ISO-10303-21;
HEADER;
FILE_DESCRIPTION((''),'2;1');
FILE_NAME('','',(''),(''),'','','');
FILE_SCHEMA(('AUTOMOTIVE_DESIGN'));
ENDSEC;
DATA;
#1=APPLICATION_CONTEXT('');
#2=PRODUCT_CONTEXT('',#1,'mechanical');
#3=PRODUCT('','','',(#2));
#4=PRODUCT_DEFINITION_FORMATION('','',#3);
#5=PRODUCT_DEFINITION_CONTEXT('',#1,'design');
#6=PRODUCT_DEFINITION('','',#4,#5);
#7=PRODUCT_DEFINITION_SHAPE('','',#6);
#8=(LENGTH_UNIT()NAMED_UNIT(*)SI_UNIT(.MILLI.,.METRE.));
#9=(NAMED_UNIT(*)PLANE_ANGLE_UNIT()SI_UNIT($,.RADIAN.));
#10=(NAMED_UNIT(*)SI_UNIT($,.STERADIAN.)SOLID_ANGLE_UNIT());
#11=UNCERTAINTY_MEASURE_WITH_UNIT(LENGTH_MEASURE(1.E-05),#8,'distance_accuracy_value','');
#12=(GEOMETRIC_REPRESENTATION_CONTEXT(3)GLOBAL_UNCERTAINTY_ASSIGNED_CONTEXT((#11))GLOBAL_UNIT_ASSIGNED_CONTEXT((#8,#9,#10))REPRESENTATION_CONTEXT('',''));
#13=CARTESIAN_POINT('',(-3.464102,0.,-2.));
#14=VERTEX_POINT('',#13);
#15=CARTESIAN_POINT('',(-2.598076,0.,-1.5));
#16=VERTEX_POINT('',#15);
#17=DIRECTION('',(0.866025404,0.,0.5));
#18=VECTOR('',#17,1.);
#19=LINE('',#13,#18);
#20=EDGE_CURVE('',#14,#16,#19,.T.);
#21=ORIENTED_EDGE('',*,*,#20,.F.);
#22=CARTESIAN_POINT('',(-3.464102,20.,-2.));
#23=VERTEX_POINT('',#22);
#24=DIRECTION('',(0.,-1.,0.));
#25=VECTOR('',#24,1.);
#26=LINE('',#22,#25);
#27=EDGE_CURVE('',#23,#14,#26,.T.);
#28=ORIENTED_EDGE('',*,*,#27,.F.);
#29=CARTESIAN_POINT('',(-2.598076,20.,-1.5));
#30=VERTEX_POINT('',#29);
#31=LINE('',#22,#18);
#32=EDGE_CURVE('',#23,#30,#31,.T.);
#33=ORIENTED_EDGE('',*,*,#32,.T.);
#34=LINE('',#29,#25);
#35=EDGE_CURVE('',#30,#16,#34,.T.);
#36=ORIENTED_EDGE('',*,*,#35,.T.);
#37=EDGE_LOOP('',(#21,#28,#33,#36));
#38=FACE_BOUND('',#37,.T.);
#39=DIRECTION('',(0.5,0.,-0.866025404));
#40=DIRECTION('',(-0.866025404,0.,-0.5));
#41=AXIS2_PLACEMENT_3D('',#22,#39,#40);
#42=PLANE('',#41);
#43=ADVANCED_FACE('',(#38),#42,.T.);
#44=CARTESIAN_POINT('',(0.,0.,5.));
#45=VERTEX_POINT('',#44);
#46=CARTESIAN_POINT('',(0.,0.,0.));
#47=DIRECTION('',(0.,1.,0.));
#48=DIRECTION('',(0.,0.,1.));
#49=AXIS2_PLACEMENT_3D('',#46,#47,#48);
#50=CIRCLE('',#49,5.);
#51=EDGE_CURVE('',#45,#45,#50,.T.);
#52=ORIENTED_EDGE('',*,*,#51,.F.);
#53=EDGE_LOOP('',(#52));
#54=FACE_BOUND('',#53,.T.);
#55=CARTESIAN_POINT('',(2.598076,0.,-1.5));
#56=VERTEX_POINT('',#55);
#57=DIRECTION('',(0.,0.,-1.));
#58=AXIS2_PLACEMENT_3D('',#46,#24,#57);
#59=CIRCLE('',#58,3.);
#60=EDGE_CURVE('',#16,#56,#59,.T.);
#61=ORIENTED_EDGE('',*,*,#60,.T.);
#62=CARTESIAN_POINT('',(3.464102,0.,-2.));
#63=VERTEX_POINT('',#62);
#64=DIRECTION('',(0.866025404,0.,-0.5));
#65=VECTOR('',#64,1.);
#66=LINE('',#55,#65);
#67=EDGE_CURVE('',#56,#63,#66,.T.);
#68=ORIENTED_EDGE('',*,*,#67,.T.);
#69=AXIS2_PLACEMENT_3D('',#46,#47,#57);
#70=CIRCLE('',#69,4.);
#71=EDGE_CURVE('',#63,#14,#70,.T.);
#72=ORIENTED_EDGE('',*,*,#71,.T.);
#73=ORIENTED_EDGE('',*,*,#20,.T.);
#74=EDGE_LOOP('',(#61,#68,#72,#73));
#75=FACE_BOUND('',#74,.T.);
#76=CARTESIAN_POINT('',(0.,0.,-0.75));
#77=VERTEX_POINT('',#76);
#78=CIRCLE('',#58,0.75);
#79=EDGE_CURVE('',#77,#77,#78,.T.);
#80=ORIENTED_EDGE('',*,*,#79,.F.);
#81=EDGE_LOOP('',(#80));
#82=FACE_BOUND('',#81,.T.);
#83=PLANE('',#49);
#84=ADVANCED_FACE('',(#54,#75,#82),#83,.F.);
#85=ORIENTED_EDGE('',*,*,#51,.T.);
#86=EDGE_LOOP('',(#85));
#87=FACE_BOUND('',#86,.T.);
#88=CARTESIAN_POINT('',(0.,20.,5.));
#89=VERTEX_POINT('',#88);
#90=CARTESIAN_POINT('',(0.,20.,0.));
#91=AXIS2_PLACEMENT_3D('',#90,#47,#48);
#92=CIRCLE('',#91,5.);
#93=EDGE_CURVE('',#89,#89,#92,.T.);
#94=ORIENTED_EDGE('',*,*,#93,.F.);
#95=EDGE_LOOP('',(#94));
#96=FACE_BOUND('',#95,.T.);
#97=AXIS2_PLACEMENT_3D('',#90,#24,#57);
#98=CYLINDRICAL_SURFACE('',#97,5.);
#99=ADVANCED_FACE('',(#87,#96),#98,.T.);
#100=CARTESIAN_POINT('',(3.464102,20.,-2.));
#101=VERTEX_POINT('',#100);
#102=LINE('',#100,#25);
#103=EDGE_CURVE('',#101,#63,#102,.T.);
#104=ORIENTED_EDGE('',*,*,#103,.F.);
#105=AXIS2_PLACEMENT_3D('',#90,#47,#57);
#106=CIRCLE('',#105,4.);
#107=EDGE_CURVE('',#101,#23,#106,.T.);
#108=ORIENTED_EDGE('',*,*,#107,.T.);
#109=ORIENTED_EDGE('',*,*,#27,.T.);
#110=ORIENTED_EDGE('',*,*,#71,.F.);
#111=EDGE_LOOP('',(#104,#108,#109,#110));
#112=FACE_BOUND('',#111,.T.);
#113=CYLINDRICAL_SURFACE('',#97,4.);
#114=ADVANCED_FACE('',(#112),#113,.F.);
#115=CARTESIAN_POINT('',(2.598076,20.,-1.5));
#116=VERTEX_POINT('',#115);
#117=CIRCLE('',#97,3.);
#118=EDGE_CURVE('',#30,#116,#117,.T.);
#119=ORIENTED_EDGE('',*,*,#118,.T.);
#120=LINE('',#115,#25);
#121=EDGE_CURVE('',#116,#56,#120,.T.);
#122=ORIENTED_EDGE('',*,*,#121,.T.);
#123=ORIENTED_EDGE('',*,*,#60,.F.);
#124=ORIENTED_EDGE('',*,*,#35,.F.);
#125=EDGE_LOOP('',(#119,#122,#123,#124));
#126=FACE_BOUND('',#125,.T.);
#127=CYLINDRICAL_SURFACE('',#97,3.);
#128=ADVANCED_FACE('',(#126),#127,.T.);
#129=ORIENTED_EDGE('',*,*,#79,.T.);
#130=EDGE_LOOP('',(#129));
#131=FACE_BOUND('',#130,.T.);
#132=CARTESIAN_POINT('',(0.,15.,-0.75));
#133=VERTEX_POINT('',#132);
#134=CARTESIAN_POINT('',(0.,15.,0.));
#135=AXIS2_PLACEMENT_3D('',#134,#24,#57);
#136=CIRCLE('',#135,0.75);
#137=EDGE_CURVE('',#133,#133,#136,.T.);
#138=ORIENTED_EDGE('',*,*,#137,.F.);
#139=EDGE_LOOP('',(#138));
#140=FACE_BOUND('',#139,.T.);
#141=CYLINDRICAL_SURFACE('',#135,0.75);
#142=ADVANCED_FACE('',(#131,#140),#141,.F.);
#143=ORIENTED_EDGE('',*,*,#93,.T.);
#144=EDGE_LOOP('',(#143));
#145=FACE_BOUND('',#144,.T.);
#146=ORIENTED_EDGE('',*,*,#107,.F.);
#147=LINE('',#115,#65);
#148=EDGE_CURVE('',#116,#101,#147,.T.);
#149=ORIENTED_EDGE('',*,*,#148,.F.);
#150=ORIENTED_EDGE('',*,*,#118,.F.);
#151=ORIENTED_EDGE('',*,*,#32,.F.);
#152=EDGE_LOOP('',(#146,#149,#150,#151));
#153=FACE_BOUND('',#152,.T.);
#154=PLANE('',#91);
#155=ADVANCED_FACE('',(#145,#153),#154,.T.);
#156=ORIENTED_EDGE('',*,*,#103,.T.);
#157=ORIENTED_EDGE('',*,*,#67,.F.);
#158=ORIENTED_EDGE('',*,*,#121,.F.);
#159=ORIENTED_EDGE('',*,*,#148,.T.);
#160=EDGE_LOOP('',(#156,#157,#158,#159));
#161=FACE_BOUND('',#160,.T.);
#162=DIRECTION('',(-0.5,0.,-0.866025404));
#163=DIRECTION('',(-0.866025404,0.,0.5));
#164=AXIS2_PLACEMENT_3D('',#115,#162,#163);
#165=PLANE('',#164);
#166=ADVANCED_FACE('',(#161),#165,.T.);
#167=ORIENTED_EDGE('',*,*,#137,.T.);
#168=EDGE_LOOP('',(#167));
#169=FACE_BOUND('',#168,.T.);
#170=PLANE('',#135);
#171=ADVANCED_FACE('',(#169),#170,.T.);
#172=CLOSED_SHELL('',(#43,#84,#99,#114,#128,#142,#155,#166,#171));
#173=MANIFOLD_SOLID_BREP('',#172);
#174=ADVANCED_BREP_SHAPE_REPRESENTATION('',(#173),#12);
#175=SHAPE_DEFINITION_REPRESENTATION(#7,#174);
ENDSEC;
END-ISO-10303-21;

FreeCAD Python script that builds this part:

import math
import FreeCAD as App
import Part
import Sketcher

V = App.Vector
Q = App.Units.Quantity

doc = App.newDocument("Part")
body = doc.addObject("PartDesign::Body", "Body")

sketch1 = body.newObject("Sketcher::SketchObject", "Sketch")
sketch1.AttachmentSupport = (doc.getObject("XZ_Plane"), [""])
sketch1.MapMode = "FlatFace"
sketch1.addGeometry([
    Part.Circle(V(0, 0, 0), V(0, 0, 1), 5),
    Part.LineSegment(V(-2.6, -1.5, 0), V(-3.5, -2, 0)),
    Part.ArcOfCircle(Part.Circle(V(0, 0, 0), V(0, 0, 1), 4), math.radians(-150), math.radians(-30)),
    Part.LineSegment(V(3.5, -2, 0), V(2.6, -1.5, 0)),
    Part.ArcOfCircle(Part.Circle(V(0, 0, 0), V(0, 0, 1), 3), math.radians(-150), math.radians(-30)),
], False)
sketch1.addConstraint([
    Sketcher.Constraint("Coincident", 1, 2, 2, 1),
    Sketcher.Constraint("Coincident", 2, 2, 3, 1),
    Sketcher.Constraint("Coincident", 3, 2, 4, 2),
    Sketcher.Constraint("Coincident", 4, 1, 1, 1),
    Sketcher.Constraint("Coincident", 0, 3, -1, 1),
    Sketcher.Constraint("Coincident", 2, 3, -1, 1),
    Sketcher.Constraint("Coincident", 4, 3, -1, 1),
    Sketcher.Constraint("Horizontal", 1, 2, 2, 2),
    Sketcher.Constraint("Horizontal", 3, 2, 4, 1),
    Sketcher.Constraint("Diameter", 0, Q("10 mm")),
    Sketcher.Constraint("Radius", 2, Q("4 mm")),
    Sketcher.Constraint("Radius", 4, Q("3 mm")),
    Sketcher.Constraint("Angle", 1, Q("-150 deg")),
    Sketcher.Constraint("DistanceY", 1, 2, -1, 1, Q("2 mm")),
])
pad1 = body.newObject("PartDesign::Pad", "Pad")
pad1.Profile = sketch1
pad1.Length = 20
pad1.Reversed = True

sketch2 = body.newObject("Sketcher::SketchObject", "Sketch001")
sketch2.AttachmentSupport = (doc.getObject("XZ_Plane"), [""])
sketch2.MapMode = "FlatFace"
sketch2.addGeometry(Part.Circle(V(0, 0, 0), V(0, 0, 1), 0.8), False)
sketch2.addConstraint([
    Sketcher.Constraint("Coincident", 0, 3, -1, 1),
    Sketcher.Constraint("Diameter", 0, Q("1.5 mm")),
])
pocket1 = body.newObject("PartDesign::Pocket", "Pocket")
pocket1.Profile = sketch2
pocket1.Length = 15

doc.recompute()
